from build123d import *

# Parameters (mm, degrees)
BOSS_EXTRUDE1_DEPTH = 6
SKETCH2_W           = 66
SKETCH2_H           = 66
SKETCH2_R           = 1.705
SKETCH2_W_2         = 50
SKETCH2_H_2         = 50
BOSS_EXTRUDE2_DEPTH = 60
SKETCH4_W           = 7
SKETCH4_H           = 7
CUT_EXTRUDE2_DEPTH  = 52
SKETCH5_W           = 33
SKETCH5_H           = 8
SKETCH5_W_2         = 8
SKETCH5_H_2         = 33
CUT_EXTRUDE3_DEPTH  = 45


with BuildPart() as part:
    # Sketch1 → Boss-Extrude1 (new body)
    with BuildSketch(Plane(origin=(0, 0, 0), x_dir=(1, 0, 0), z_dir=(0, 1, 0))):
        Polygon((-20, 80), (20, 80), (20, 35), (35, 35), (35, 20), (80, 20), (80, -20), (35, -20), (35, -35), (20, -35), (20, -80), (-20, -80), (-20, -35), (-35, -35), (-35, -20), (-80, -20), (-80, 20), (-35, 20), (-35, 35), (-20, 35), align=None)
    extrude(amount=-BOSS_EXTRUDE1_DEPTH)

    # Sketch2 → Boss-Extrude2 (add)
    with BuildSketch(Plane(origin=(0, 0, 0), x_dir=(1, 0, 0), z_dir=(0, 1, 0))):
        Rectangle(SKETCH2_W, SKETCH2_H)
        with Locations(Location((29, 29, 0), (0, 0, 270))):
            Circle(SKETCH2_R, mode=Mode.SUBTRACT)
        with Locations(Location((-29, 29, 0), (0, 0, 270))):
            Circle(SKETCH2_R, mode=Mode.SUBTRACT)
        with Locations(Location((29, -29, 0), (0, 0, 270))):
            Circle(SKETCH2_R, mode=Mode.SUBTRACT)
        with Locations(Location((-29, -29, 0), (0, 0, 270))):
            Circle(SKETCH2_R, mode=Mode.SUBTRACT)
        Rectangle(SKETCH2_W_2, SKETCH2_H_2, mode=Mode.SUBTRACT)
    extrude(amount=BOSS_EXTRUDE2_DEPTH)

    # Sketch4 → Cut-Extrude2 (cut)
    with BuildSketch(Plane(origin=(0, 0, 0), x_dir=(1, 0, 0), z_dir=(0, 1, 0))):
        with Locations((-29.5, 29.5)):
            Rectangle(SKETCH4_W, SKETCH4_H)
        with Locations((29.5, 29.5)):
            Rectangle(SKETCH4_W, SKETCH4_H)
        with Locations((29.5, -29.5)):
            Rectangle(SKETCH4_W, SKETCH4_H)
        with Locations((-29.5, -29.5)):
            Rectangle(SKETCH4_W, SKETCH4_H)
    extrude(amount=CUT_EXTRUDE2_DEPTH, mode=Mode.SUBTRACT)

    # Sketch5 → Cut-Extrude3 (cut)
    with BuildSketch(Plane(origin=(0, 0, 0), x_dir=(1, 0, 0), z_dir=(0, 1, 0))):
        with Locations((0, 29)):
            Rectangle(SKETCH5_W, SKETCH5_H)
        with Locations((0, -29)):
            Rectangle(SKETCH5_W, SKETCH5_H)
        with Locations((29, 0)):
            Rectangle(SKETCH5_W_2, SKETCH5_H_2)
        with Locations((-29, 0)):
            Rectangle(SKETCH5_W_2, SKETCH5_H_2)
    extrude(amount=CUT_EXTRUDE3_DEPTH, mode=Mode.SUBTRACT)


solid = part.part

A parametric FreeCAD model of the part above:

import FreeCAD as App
import Part
import Sketcher
Q = App.Units.Quantity

doc = App.newDocument("Part")
body = doc.addObject("PartDesign::Body", "Body")

sketch1 = body.newObject("Sketcher::SketchObject", "Sketch")
sketch1.AttachmentSupport = (doc.getObject("XZ_Plane"), [""])
sketch1.MapMode = "FlatFace"
sketch1.addGeometry([
    Part.LineSegment(App.Vector(20, -80, 0), App.Vector(-20, -80, 0)),
    Part.LineSegment(App.Vector(-20, -80, 0), App.Vector(-20, -35, 0)),
    Part.LineSegment(App.Vector(-20, -35, 0), App.Vector(-35, -35, 0)),
    Part.LineSegment(App.Vector(-35, -35, 0), App.Vector(-35, -20, 0)),
    Part.LineSegment(App.Vector(-35, -20, 0), App.Vector(-80, -20, 0)),
    Part.LineSegment(App.Vector(-80, -20, 0), App.Vector(-80, 20, 0)),
    Part.LineSegment(App.Vector(-80, 20, 0), App.Vector(-35, 20, 0)),
    Part.LineSegment(App.Vector(-35, 20, 0), App.Vector(-35, 35, 0)),
    Part.LineSegment(App.Vector(-35, 35, 0), App.Vector(-20, 35, 0)),
    Part.LineSegment(App.Vector(-20, 35, 0), App.Vector(-20, 80, 0)),
    Part.LineSegment(App.Vector(-20, 80, 0), App.Vector(20, 80, 0)),
    Part.LineSegment(App.Vector(20, 80, 0), App.Vector(20, 35, 0)),
    Part.LineSegment(App.Vector(20, 35, 0), App.Vector(35, 35, 0)),
    Part.LineSegment(App.Vector(35, 35, 0), App.Vector(35, 20, 0)),
    Part.LineSegment(App.Vector(35, 20, 0), App.Vector(80, 20, 0)),
    Part.LineSegment(App.Vector(80, 20, 0), App.Vector(80, -20, 0)),
    Part.LineSegment(App.Vector(80, -20, 0), App.Vector(35, -20, 0)),
    Part.LineSegment(App.Vector(35, -20, 0), App.Vector(35, -35, 0)),
    Part.LineSegment(App.Vector(35, -35, 0), App.Vector(20, -35, 0)),
    Part.LineSegment(App.Vector(20, -35, 0), App.Vector(20, -80, 0)),
], False)
sketch1.addConstraint([
    Sketcher.Constraint("Coincident", 0, 2, 1, 1),
    Sketcher.Constraint("Coincident", 1, 2, 2, 1),
    Sketcher.Constraint("Coincident", 2, 2, 3, 1),
    Sketcher.Constraint("Coincident", 3, 2, 4, 1),
    Sketcher.Constraint("Coincident", 4, 2, 5, 1),
    Sketcher.Constraint("Coincident", 5, 2, 6, 1),
    Sketcher.Constraint("Coincident", 6, 2, 7, 1),
    Sketcher.Constraint("Coincident", 7, 2, 8, 1),
    Sketcher.Constraint("Coincident", 8, 2, 9, 1),
    Sketcher.Constraint("Coincident", 9, 2, 10, 1),
    Sketcher.Constraint("Coincident", 10, 2, 11, 1),
    Sketcher.Constraint("Coincident", 11, 2, 12, 1),
    Sketcher.Constraint("Coincident", 12, 2, 13, 1),
    Sketcher.Constraint("Coincident", 13, 2, 14, 1),
    Sketcher.Constraint("Coincident", 14, 2, 15, 1),
    Sketcher.Constraint("Coincident", 15, 2, 16, 1),
    Sketcher.Constraint("Coincident", 16, 2, 17, 1),
    Sketcher.Constraint("Coincident", 17, 2, 18, 1),
    Sketcher.Constraint("Coincident", 18, 2, 19, 1),
    Sketcher.Constraint("Coincident", 19, 2, 0, 1),
    Sketcher.Constraint("Horizontal", 0),
    Sketcher.Constraint("Vertical", 1),
    Sketcher.Constraint("Horizontal", 2),
    Sketcher.Constraint("Vertical", 3),
    Sketcher.Constraint("Horizontal", 4),
    Sketcher.Constraint("Vertical", 5),
    Sketcher.Constraint("Horizontal", 6),
    Sketcher.Constraint("Vertical", 7),
    Sketcher.Constraint("Horizontal", 8),
    Sketcher.Constraint("Vertical", 9),
    Sketcher.Constraint("Horizontal", 10),
    Sketcher.Constraint("Vertical", 11),
    Sketcher.Constraint("Horizontal", 12),
    Sketcher.Constraint("Vertical", 13),
    Sketcher.Constraint("Horizontal", 14),
    Sketcher.Constraint("Vertical", 15),
    Sketcher.Constraint("Horizontal", 16),
    Sketcher.Constraint("Vertical", 17),
    Sketcher.Constraint("Horizontal", 18),
    Sketcher.Constraint("Vertical", 19),
    Sketcher.Constraint("Symmetric", 0, 2, 10, 2, -1, 1),
    Sketcher.Constraint("Symmetric", 2, 2, 12, 2, -1, 1),
    Sketcher.Constraint("Symmetric", 4, 2, 14, 2, -1, 1),
    Sketcher.Constraint("Symmetric", 6, 2, 16, 2, -1, 1),
    Sketcher.Constraint("Symmetric", 8, 2, 18, 2, -1, 1),
    Sketcher.Constraint("Symmetric", 8, 2, 11, 2, -2),
    Sketcher.Constraint("Symmetric", 6, 2, 13, 2, -2),
    Sketcher.Constraint("Equal", 16, 1),
    Sketcher.Constraint("Equal", 18, 3),
    Sketcher.Constraint("Equal", 10, 5),
    Sketcher.Constraint("DistanceX", 0, 2, 0, 1, Q("40 mm")),
    Sketcher.Constraint("DistanceX", 2, 2, 2, 1, Q("15 mm")),
    Sketcher.Constraint("DistanceX", 4, 2, 4, 1, Q("45 mm")),
])
pad1 = body.newObject("PartDesign::Pad", "Pad")
pad1.Profile = sketch1
pad1.Length = 6

sketch2 = body.newObject("Sketcher::SketchObject", "Sketch001")
sketch2.AttachmentSupport = (doc.getObject("XZ_Plane"), [""])
sketch2.MapMode = "FlatFace"
sketch2.addGeometry([
    Part.LineSegment(App.Vector(-33, -33, 0), App.Vector(-33, 33, 0)),
    Part.LineSegment(App.Vector(-33, 33, 0), App.Vector(33, 33, 0)),
    Part.LineSegment(App.Vector(33, 33, 0), App.Vector(33, -33, 0)),
    Part.LineSegment(App.Vector(33, -33, 0), App.Vector(-33, -33, 0)),
    Part.Circle(App.Vector(-29, 29, 0), App.Vector(0, 0, 1), 1.7),
    Part.Circle(App.Vector(29, 29, 0), App.Vector(0, 0, 1), 1.7),
    Part.Circle(App.Vector(-29, -29, 0), App.Vector(0, 0, 1), 1.7),
    Part.LineSegment(App.Vector(25, 25, 0), App.Vector(-25, 25, 0)),
    Part.LineSegment(App.Vector(-25, 25, 0), App.Vector(-25, -25, 0)),
    Part.LineSegment(App.Vector(-25, -25, 0), App.Vector(25, -25, 0)),
    Part.LineSegment(App.Vector(25, -25, 0), App.Vector(25, 25, 0)),
    Part.Circle(App.Vector(29, -29, 0), App.Vector(0, 0, 1), 1.7),
], False)
sketch2.addConstraint([
    Sketcher.Constraint("Coincident", 0, 2, 1, 1),
    Sketcher.Constraint("Coincident", 1, 2, 2, 1),
    Sketcher.Constraint("Coincident", 2, 2, 3, 1),
    Sketcher.Constraint("Coincident", 3, 2, 0, 1),
    Sketcher.Constraint("Coincident", 7, 2, 8, 1),
    Sketcher.Constraint("Coincident", 8, 2, 9, 1),
    Sketcher.Constraint("Coincident", 9, 2, 10, 1),
    Sketcher.Constraint("Coincident", 10, 2, 7, 1),
    Sketcher.Constraint("Vertical", 0),
    Sketcher.Constraint("Horizontal", 1),
    Sketcher.Constraint("Vertical", 2),
    Sketcher.Constraint("Horizontal", 3),
    Sketcher.Constraint("Horizontal", 7),
    Sketcher.Constraint("Vertical", 8),
    Sketcher.Constraint("Horizontal", 9),
    Sketcher.Constraint("Vertical", 10),
    Sketcher.Constraint("Equal", 4, 5),
    Sketcher.Constraint("Equal", 5, 6),
    Sketcher.Constraint("Equal", 6, 11),
    Sketcher.Constraint("Symmetric", 5, 3, 6, 3, -1, 1),
    Sketcher.Constraint("Symmetric", 4, 3, 11, 3, -1, 1),
    Sketcher.Constraint("Symmetric", 0, 2, 2, 2, -1, 1),
    Sketcher.Constraint("Symmetric", 7, 2, 9, 2, -1, 1),
    Sketcher.Constraint("Symmetric", 4, 3, 5, 3, -2),
    Sketcher.Constraint("Equal", 3, 0),
    Sketcher.Constraint("Equal", 9, 8),
    Sketcher.Constraint("Diameter", 4, Q("3.41 mm")),
    Sketcher.Constraint("DistanceX", 1, 1, 1, 2, Q("66 mm")),
    Sketcher.Constraint("DistanceX", 7, 2, 7, 1, Q("50 mm")),
    Sketcher.Constraint("DistanceX", 4, 3, -1, 1, Q("29 mm")),
    Sketcher.Constraint("DistanceY", -1, 1, 4, 3, Q("29 mm")),
])
pad2 = body.newObject("PartDesign::Pad", "Pad001")
pad2.Profile = sketch2
pad2.Length = 60
pad2.Reversed = True

sketch3 = body.newObject("Sketcher::SketchObject", "Sketch002")
sketch3.AttachmentSupport = (doc.getObject("XZ_Plane"), [""])
sketch3.MapMode = "FlatFace"
sketch3.addGeometry([
    Part.LineSegment(App.Vector(-33, -33, 0), App.Vector(-33, -26, 0)),
    Part.LineSegment(App.Vector(-33, -26, 0), App.Vector(-26, -26, 0)),
    Part.LineSegment(App.Vector(-26, -26, 0), App.Vector(-26, -33, 0)),
    Part.LineSegment(App.Vector(-26, -33, 0), App.Vector(-33, -33, 0)),
    Part.LineSegment(App.Vector(26, -33, 0), App.Vector(26, -26, 0)),
    Part.LineSegment(App.Vector(26, -26, 0), App.Vector(33, -26, 0)),
    Part.LineSegment(App.Vector(33, -26, 0), App.Vector(33, -33, 0)),
    Part.LineSegment(App.Vector(33, -33, 0), App.Vector(26, -33, 0)),
    Part.LineSegment(App.Vector(26, 26, 0), App.Vector(26, 33, 0)),
    Part.LineSegment(App.Vector(26, 33, 0), App.Vector(33, 33, 0)),
    Part.LineSegment(App.Vector(33, 33, 0), App.Vector(33, 26, 0)),
    Part.LineSegment(App.Vector(33, 26, 0), App.Vector(26, 26, 0)),
    Part.LineSegment(App.Vector(-33, 26, 0), App.Vector(-33, 33, 0)),
    Part.LineSegment(App.Vector(-33, 33, 0), App.Vector(-26, 33, 0)),
    Part.LineSegment(App.Vector(-26, 33, 0), App.Vector(-26, 26, 0)),
    Part.LineSegment(App.Vector(-26, 26, 0), App.Vector(-33, 26, 0)),
], False)
sketch3.addConstraint([
    Sketcher.Constraint("Coincident", 0, 2, 1, 1),
    Sketcher.Constraint("Coincident", 1, 2, 2, 1),
    Sketcher.Constraint("Coincident", 2, 2, 3, 1),
    Sketcher.Constraint("Coincident", 3, 2, 0, 1),
    Sketcher.Constraint("Coincident", 4, 2, 5, 1),
    Sketcher.Constraint("Coincident", 5, 2, 6, 1),
    Sketcher.Constraint("Coincident", 6, 2, 7, 1),
    Sketcher.Constraint("Coincident", 7, 2, 4, 1),
    Sketcher.Constraint("Coincident", 8, 2, 9, 1),
    Sketcher.Constraint("Coincident", 9, 2, 10, 1),
    Sketcher.Constraint("Coincident", 10, 2, 11, 1),
    Sketcher.Constraint("Coincident", 11, 2, 8, 1),
    Sketcher.Constraint("Coincident", 12, 2, 13, 1),
    Sketcher.Constraint("Coincident", 13, 2, 14, 1),
    Sketcher.Constraint("Coincident", 14, 2, 15, 1),
    Sketcher.Constraint("Coincident", 15, 2, 12, 1),
    Sketcher.Constraint("Vertical", 0),
    Sketcher.Constraint("Horizontal", 1),
    Sketcher.Constraint("Vertical", 2),
    Sketcher.Constraint("Horizontal", 3),
    Sketcher.Constraint("Vertical", 4),
    Sketcher.Constraint("Horizontal", 5),
    Sketcher.Constraint("Vertical", 6),
    Sketcher.Constraint("Horizontal", 7),
    Sketcher.Constraint("Vertical", 8),
    Sketcher.Constraint("Horizontal", 9),
    Sketcher.Constraint("Vertical", 10),
    Sketcher.Constraint("Horizontal", 11),
    Sketcher.Constraint("Vertical", 12),
    Sketcher.Constraint("Horizontal", 13),
    Sketcher.Constraint("Vertical", 14),
    Sketcher.Constraint("Horizontal", 15),
    Sketcher.Constraint("Symmetric", 2, 2, 8, 2, -1, 1),
    Sketcher.Constraint("Symmetric", 0, 2, 10, 2, -1, 1),
    Sketcher.Constraint("Symmetric", 6, 2, 12, 2, -1, 1),
    Sketcher.Constraint("Symmetric", 4, 2, 14, 2, -1, 1),
    Sketcher.Constraint("Symmetric", 1, 2, 4, 2, -2),
    Sketcher.Constraint("Symmetric", 3, 2, 6, 2, -2),
    Sketcher.Constraint("Equal", 15, 0),
    Sketcher.Constraint("DistanceX", 1, 1, 1, 2, Q("7 mm")),
    Sketcher.Constraint("DistanceX", 0, 2, -1, 1, Q("33 mm")),
    Sketcher.Constraint("DistanceY", 0, 2, -1, 1, Q("26 mm")),
])
pocket1 = body.newObject("PartDesign::Pocket", "Pocket")
pocket1.Profile = sketch3
pocket1.Length = 52

sketch4 = body.newObject("Sketcher::SketchObject", "Sketch003")
sketch4.AttachmentSupport = (doc.getObject("XZ_Plane"), [""])
sketch4.MapMode = "FlatFace"
sketch4.addGeometry([
    Part.LineSegment(App.Vector(-16, -33, 0), App.Vector(-16, -25, 0)),
    Part.LineSegment(App.Vector(-16, -25, 0), App.Vector(16, -25, 0)),
    Part.LineSegment(App.Vector(16, -25, 0), App.Vector(16, -33, 0)),
    Part.LineSegment(App.Vector(16, -33, 0), App.Vector(-16, -33, 0)),
    Part.LineSegment(App.Vector(-16, 25, 0), App.Vector(-16, 33, 0)),
    Part.LineSegment(App.Vector(-16, 33, 0), App.Vector(16, 33, 0)),
    Part.LineSegment(App.Vector(16, 33, 0), App.Vector(16, 25, 0)),
    Part.LineSegment(App.Vector(16, 25, 0), App.Vector(-16, 25, 0)),
    Part.LineSegment(App.Vector(25, -16, 0), App.Vector(25, 16, 0)),
    Part.LineSegment(App.Vector(25, 16, 0), App.Vector(33, 16, 0)),
    Part.LineSegment(App.Vector(33, 16, 0), App.Vector(33, -16, 0)),
    Part.LineSegment(App.Vector(33, -16, 0), App.Vector(25, -16, 0)),
    Part.LineSegment(App.Vector(-33, -16, 0), App.Vector(-33, 16, 0)),
    Part.LineSegment(App.Vector(-33, 16, 0), App.Vector(-25, 16, 0)),
    Part.LineSegment(App.Vector(-25, 16, 0), App.Vector(-25, -16, 0)),
    Part.LineSegment(App.Vector(-25, -16, 0), App.Vector(-33, -16, 0)),
], False)
sketch4.addConstraint([
    Sketcher.Constraint("Coincident", 0, 2, 1, 1),
    Sketcher.Constraint("Coincident", 1, 2, 2, 1),
    Sketcher.Constraint("Coincident", 2, 2, 3, 1),
    Sketcher.Constraint("Coincident", 3, 2, 0, 1),
    Sketcher.Constraint("Coincident", 4, 2, 5, 1),
    Sketcher.Constraint("Coincident", 5, 2, 6, 1),
    Sketcher.Constraint("Coincident", 6, 2, 7, 1),
    Sketcher.Constraint("Coincident", 7, 2, 4, 1),
    Sketcher.Constraint("Coincident", 8, 2, 9, 1),
    Sketcher.Constraint("Coincident", 9, 2, 10, 1),
    Sketcher.Constraint("Coincident", 10, 2, 11, 1),
    Sketcher.Constraint("Coincident", 11, 2, 8, 1),
    Sketcher.Constraint("Coincident", 12, 2, 13, 1),
    Sketcher.Constraint("Coincident", 13, 2, 14, 1),
    Sketcher.Constraint("Coincident", 14, 2, 15, 1),
    Sketcher.Constraint("Coincident", 15, 2, 12, 1),
    Sketcher.Constraint("Vertical", 0),
    Sketcher.Constraint("Horizontal", 1),
    Sketcher.Constraint("Vertical", 2),
    Sketcher.Constraint("Horizontal", 3),
    Sketcher.Constraint("Vertical", 4),
    Sketcher.Constraint("Horizontal", 5),
    Sketcher.Constraint("Vertical", 6),
    Sketcher.Constraint("Horizontal", 7),
    Sketcher.Constraint("Vertical", 8),
    Sketcher.Constraint("Horizontal", 9),
    Sketcher.Constraint("Vertical", 10),
    Sketcher.Constraint("Horizontal", 11),
    Sketcher.Constraint("Vertical", 12),
    Sketcher.Constraint("Horizontal", 13),
    Sketcher.Constraint("Vertical", 14),
    Sketcher.Constraint("Horizontal", 15),
    Sketcher.Constraint("Symmetric", 2, 2, 4, 2, -1, 1),
    Sketcher.Constraint("Symmetric", 0, 2, 6, 2, -1, 1),
    Sketcher.Constraint("Symmetric", 10, 2, 12, 2, -1, 1),
    Sketcher.Constraint("Symmetric", 8, 2, 14, 2, -1, 1),
    Sketcher.Constraint("Horizontal", 9, 2, 12, 2),
    Sketcher.Constraint("Vertical", 3, 2, 4, 2),
    Sketcher.Constraint("Equal", 15, 0),
    Sketcher.Constraint("Equal", 7, 8),
    Sketcher.Constraint("DistanceX", 1, 1, 1, 2, Q("33 mm")),
    Sketcher.Constraint("DistanceX", 9, 1, 9, 2, Q("8 mm")),
    Sketcher.Constraint("DistanceY", 0, 2, -1, 1, Q("25 mm")),
    Sketcher.Constraint("DistanceX", -1, 1, 8, 2, Q("25 mm")),
])
pocket2 = body.newObject("PartDesign::Pocket", "Pocket001")
pocket2.Profile = sketch4
pocket2.Length = 45

doc.recompute()
